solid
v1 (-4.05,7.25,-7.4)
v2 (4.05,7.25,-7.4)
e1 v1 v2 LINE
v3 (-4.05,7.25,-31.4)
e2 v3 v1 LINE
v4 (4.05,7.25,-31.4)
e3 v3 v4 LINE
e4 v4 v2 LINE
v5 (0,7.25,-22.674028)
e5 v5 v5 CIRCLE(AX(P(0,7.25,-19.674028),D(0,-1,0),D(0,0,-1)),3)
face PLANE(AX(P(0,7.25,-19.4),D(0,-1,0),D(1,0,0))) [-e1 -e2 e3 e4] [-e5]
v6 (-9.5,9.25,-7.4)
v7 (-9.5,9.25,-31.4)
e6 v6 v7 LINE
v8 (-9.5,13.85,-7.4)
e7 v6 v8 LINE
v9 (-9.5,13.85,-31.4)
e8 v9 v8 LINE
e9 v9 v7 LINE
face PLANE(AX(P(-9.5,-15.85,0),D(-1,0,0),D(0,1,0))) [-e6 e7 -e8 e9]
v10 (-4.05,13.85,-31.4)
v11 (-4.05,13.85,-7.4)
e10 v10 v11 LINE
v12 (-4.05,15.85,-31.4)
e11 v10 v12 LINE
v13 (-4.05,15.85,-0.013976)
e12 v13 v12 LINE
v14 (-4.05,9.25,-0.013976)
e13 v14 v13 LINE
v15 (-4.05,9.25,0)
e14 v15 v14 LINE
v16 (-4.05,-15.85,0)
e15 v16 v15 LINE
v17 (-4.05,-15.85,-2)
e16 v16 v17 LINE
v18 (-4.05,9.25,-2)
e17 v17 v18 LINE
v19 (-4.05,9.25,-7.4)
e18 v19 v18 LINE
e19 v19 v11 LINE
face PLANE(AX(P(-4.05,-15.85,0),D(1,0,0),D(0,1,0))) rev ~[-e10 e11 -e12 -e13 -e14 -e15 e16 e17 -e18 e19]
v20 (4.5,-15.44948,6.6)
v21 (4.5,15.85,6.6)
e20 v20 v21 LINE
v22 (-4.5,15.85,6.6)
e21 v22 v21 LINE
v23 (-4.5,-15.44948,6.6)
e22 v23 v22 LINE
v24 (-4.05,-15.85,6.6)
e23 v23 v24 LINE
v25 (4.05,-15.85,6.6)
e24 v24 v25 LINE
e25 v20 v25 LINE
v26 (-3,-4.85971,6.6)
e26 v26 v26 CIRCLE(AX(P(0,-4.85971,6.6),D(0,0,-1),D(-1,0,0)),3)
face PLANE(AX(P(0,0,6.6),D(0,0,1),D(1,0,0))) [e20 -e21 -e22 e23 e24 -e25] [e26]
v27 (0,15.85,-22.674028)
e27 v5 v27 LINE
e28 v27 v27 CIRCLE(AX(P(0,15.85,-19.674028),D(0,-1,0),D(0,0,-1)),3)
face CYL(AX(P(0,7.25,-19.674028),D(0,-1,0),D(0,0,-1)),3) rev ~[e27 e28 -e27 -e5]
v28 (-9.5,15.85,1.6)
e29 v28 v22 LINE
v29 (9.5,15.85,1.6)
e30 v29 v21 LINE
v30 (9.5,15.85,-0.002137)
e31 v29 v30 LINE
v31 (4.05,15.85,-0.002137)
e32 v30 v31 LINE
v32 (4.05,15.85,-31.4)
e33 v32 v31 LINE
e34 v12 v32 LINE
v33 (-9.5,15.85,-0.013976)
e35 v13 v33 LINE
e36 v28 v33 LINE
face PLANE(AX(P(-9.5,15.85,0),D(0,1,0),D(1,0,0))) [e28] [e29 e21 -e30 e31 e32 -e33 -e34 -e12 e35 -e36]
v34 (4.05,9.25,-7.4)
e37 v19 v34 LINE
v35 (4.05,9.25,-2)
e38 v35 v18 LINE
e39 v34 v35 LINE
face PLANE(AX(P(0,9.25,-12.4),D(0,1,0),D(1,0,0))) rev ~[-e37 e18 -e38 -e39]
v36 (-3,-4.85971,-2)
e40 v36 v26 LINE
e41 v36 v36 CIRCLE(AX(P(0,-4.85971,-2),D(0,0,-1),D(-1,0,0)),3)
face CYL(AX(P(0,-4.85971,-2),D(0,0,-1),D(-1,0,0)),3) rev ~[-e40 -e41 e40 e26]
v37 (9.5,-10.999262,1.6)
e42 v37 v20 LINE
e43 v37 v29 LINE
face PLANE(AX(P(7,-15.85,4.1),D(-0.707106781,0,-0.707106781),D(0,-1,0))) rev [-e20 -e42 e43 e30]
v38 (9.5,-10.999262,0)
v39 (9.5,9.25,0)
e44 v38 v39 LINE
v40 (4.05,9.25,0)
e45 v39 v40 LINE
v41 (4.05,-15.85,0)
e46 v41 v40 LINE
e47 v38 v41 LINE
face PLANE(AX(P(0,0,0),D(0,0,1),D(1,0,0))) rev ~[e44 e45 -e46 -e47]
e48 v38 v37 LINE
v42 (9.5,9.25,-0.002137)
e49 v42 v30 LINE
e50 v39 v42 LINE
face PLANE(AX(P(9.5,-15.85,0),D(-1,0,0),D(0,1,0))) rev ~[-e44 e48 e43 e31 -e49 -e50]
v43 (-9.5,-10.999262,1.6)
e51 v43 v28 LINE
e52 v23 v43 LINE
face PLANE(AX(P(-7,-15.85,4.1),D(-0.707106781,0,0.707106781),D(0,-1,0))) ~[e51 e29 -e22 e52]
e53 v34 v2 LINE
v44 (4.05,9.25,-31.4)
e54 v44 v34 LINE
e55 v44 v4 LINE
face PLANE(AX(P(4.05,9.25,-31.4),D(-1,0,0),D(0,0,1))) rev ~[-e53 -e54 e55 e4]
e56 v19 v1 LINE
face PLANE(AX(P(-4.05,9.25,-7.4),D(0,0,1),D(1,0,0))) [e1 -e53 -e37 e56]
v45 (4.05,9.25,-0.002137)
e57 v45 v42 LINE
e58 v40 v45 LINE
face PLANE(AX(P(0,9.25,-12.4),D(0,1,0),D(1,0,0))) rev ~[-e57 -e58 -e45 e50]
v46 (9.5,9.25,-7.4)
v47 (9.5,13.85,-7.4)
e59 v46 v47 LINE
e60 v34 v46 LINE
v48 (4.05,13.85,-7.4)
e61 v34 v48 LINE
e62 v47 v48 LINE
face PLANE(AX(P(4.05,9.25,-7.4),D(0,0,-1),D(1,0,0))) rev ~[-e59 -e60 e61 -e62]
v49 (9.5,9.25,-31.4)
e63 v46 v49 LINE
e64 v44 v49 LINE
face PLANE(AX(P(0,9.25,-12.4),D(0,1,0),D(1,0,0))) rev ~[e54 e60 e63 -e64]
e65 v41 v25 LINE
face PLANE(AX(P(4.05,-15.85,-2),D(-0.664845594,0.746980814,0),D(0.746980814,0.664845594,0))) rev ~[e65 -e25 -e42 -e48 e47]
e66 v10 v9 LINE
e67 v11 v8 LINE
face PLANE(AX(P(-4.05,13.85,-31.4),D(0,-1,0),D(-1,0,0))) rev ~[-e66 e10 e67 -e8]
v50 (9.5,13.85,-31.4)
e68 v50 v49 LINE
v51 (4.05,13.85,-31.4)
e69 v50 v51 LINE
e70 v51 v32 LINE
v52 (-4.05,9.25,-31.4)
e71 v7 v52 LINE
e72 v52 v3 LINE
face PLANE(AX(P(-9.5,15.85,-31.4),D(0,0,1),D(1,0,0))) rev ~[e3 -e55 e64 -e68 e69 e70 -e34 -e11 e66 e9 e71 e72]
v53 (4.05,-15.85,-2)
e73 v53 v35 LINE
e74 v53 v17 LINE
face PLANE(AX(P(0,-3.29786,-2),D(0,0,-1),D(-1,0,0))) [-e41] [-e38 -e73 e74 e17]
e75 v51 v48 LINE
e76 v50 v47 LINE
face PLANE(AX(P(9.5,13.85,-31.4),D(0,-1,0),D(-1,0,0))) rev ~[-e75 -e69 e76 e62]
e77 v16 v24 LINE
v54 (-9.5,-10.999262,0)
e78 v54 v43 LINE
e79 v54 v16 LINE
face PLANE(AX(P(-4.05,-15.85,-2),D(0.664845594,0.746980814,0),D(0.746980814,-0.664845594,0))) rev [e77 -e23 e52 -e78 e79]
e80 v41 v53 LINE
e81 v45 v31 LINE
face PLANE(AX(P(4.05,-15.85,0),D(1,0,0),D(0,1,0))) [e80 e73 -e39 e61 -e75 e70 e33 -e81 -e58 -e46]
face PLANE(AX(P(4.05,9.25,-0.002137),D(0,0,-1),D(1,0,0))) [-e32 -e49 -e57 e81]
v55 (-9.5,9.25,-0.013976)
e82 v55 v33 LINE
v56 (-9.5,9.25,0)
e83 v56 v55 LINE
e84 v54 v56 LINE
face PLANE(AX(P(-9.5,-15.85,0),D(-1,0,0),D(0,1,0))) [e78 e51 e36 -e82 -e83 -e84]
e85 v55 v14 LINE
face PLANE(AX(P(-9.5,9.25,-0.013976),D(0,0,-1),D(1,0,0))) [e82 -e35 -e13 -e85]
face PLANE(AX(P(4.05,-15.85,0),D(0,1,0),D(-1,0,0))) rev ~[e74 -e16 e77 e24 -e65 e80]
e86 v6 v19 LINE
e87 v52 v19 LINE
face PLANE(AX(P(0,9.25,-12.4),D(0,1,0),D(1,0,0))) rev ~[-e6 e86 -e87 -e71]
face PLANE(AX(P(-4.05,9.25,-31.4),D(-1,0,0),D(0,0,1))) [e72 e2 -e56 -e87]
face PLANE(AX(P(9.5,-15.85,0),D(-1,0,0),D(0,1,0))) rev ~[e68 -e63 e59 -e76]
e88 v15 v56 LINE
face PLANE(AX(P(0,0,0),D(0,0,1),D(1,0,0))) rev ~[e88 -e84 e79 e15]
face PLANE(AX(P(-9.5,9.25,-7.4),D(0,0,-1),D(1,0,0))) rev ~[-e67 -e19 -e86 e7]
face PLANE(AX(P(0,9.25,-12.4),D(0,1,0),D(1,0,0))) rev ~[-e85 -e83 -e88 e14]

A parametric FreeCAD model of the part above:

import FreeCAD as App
import Part
import Sketcher

V = App.Vector
Q = App.Units.Quantity


def edges_at(feature, points):
    """Names of the edges that pass closest to the given points."""
    edges = feature.Shape.Edges
    near = lambda p: min(range(len(edges)), key=lambda i: edges[i].distToShape(Part.Vertex(*p))[0])
    return sorted({f"Edge{near(p) + 1}" for p in points})

doc = App.newDocument("Part")
body = doc.addObject("PartDesign::Body", "Body")

sketch1 = body.newObject("Sketcher::SketchObject", "Sketch")
sketch1.AttachmentSupport = (doc.getObject("XY_Plane"), [""])
sketch1.MapMode = "FlatFace"
sketch1.addGeometry([
    Part.LineSegment(V(-10, 16, 0), V(-10, -16, 0)),
    Part.LineSegment(V(-10, -16, 0), V(10, -16, 0)),
    Part.LineSegment(V(10, -16, 0), V(10, 16, 0)),
    Part.LineSegment(V(10, 16, 0), V(-10, 16, 0)),
], False)
sketch1.addConstraint([
    Sketcher.Constraint("Coincident", 0, 2, 1, 1),
    Sketcher.Constraint("Coincident", 1, 2, 2, 1),
    Sketcher.Constraint("Coincident", 2, 2, 3, 1),
    Sketcher.Constraint("Coincident", 3, 2, 0, 1),
    Sketcher.Constraint("Vertical", 0),
    Sketcher.Constraint("Horizontal", 1),
    Sketcher.Constraint("Vertical", 2),
    Sketcher.Constraint("Horizontal", 3),
    Sketcher.Constraint("Symmetric", 0, 2, 2, 2, -1, 1),
    Sketcher.Constraint("DistanceX", 1, 1, 1, 2, Q("19 mm")),
    Sketcher.Constraint("DistanceY", 0, 2, 0, 1, Q("31.7 mm")),
])
pad1 = body.newObject("PartDesign::Pad", "Pad")
pad1.Profile = sketch1
pad1.Length = 6.6

sketch2 = body.newObject("Sketcher::SketchObject", "Sketch001")
sketch2.AttachmentSupport = (doc.getObject("XZ_Plane"), [""])
sketch2.MapMode = "FlatFace"
sketch2.AttachmentOffset = App.Placement(V(0, 0, -15.85), App.Rotation())
sketch2.addGeometry([
    Part.LineSegment(V(-10, -31, 0), V(-10, 7, 0)),
    Part.LineSegment(V(-10, 7, 0), V(10, 7, 0)),
    Part.LineSegment(V(10, 7, 0), V(10, -31, 0)),
    Part.LineSegment(V(10, -31, 0), V(-10, -31, 0)),
], False)
sketch2.addConstraint([
    Sketcher.Constraint("Coincident", 0, 2, 1, 1),
    Sketcher.Constraint("Coincident", 1, 2, 2, 1),
    Sketcher.Constraint("Coincident", 2, 2, 3, 1),
    Sketcher.Constraint("Coincident", 3, 2, 0, 1),
    Sketcher.Constraint("Vertical", 0),
    Sketcher.Constraint("Horizontal", 1),
    Sketcher.Constraint("Vertical", 2),
    Sketcher.Constraint("Horizontal", 3),
    Sketcher.Constraint("DistanceX", 1, 1, 1, 2, Q("19 mm")),
    Sketcher.Constraint("DistanceY", 0, 1, 0, 2, Q("38 mm")),
    Sketcher.Constraint("DistanceX", 0, 2, -1, 1, Q("9.5 mm")),
    Sketcher.Constraint("DistanceY", -1, 1, 0, 2, Q("6.6 mm")),
])
pad2 = body.newObject("PartDesign::Pad", "Pad001")
pad2.Profile = sketch2
pad2.Length = 6.6

sketch3 = body.newObject("Sketcher::SketchObject", "Sketch002")
sketch3.AttachmentSupport = (doc.getObject("XY_Plane"), [""])
sketch3.MapMode = "FlatFace"
sketch3.addGeometry([
    Part.LineSegment(V(4, 9, 0), V(4, -16, 0)),
    Part.LineSegment(V(4, -16, 0), V(-4, -16, 0)),
    Part.LineSegment(V(-4, -16, 0), V(-4, 9, 0)),
    Part.LineSegment(V(-4, 9, 0), V(4, 9, 0)),
], False)
sketch3.addConstraint([
    Sketcher.Constraint("Coincident", 0, 2, 1, 1),
    Sketcher.Constraint("Coincident", 1, 2, 2, 1),
    Sketcher.Constraint("Coincident", 2, 2, 3, 1),
    Sketcher.Constraint("Coincident", 3, 2, 0, 1),
    Sketcher.Constraint("Vertical", 0),
    Sketcher.Constraint("Horizontal", 1),
    Sketcher.Constraint("Vertical", 2),
    Sketcher.Constraint("Horizontal", 3),
    Sketcher.Constraint("DistanceX", 1, 2, 1, 1, Q("8.1 mm")),
    Sketcher.Constraint("DistanceX", -1, 1, 0, 2, Q("4.05 mm")),
    Sketcher.Constraint("DistanceY", 0, 2, -1, 1, Q("15.85 mm")),
    Sketcher.Constraint("DistanceY", 0, 2, 0, 1, Q("25.10428 mm")),
])
pad3 = body.newObject("PartDesign::Pad", "Pad002")
pad3.Profile = sketch3
pad3.Length = 2
pad3.Reversed = True

sketch4 = body.newObject("Sketcher::SketchObject", "Sketch003")
sketch4.AttachmentSupport = (doc.getObject("XZ_Plane"), [""])
sketch4.MapMode = "FlatFace"
sketch4.AttachmentOffset = App.Placement(V(0, 0, -9.25), App.Rotation())
sketch4.addGeometry([
    Part.LineSegment(V(-4, -7, 0), V(-4, -31, 0)),
    Part.LineSegment(V(-4, -31, 0), V(4, -31, 0)),
    Part.LineSegment(V(4, -31, 0), V(4, -7, 0)),
    Part.LineSegment(V(4, -7, 0), V(-4, -7, 0)),
], False)
sketch4.addConstraint([
    Sketcher.Constraint("Coincident", 0, 2, 1, 1),
    Sketcher.Constraint("Coincident", 1, 2, 2, 1),
    Sketcher.Constraint("Coincident", 2, 2, 3, 1),
    Sketcher.Constraint("Coincident", 3, 2, 0, 1),
    Sketcher.Constraint("Vertical", 0),
    Sketcher.Constraint("Horizontal", 1),
    Sketcher.Constraint("Vertical", 2),
    Sketcher.Constraint("Horizontal", 3),
    Sketcher.Constraint("DistanceY", 0, 2, 0, 1, Q("24 mm")),
    Sketcher.Constraint("DistanceX", 1, 1, 1, 2, Q("8.1 mm")),
    Sketcher.Constraint("DistanceY", 0, 2, -1, 1, Q("31.4 mm")),
    Sketcher.Constraint("DistanceX", 0, 2, -1, 1, Q("4.05 mm")),
])
pad4 = body.newObject("PartDesign::Pad", "Pad003")
pad4.Profile = sketch4
pad4.Length = 2

sketch5 = body.newObject("Sketcher::SketchObject", "Sketch004")
sketch5.AttachmentSupport = (doc.getObject("XZ_Plane"), [""])
sketch5.MapMode = "FlatFace"
sketch5.AttachmentOffset = App.Placement(V(0, 0, -9.25), App.Rotation())
sketch5.addGeometry([
    Part.LineSegment(V(-10, 0, 0), V(-10, -7, 0)),
    Part.LineSegment(V(-10, -7, 0), V(-4, -7, 0)),
    Part.LineSegment(V(-4, -7, 0), V(-4, 0, 0)),
    Part.LineSegment(V(-4, 0, 0), V(-10, 0, 0)),
    Part.LineSegment(V(4, 0, 0), V(4, -7, 0)),
    Part.LineSegment(V(4, -7, 0), V(10, -7, 0)),
    Part.LineSegment(V(10, -7, 0), V(10, 0, 0)),
    Part.LineSegment(V(10, 0, 0), V(4, 0, 0)),
], False)
sketch5.addConstraint([
    Sketcher.Constraint("Coincident", 0, 2, 1, 1),
    Sketcher.Constraint("Coincident", 1, 2, 2, 1),
    Sketcher.Constraint("Coincident", 2, 2, 3, 1),
    Sketcher.Constraint("Coincident", 3, 2, 0, 1),
    Sketcher.Constraint("Coincident", 4, 2, 5, 1),
    Sketcher.Constraint("Coincident", 5, 2, 6, 1),
    Sketcher.Constraint("Coincident", 6, 2, 7, 1),
    Sketcher.Constraint("Coincident", 7, 2, 4, 1),
    Sketcher.Constraint("Vertical", 0),
    Sketcher.Constraint("Horizontal", 1),
    Sketcher.Constraint("Vertical", 2),
    Sketcher.Constraint("Horizontal", 3),
    Sketcher.Constraint("Vertical", 4),
    Sketcher.Constraint("Horizontal", 5),
    Sketcher.Constraint("Vertical", 6),
    Sketcher.Constraint("Horizontal", 7),
    Sketcher.Constraint("Symmetric", 1, 2, 4, 2, -2),
    Sketcher.Constraint("Equal", 3, 5),
    Sketcher.Constraint("DistanceX", 0, 2, 5, 2, Q("19 mm")),
    Sketcher.Constraint("DistanceX", 1, 1, 1, 2, Q("5.45 mm")),
    Sketcher.Constraint("DistanceY", 0, 2, -1, 1, Q("7.4 mm")),
    Sketcher.Constraint("DistanceY", 0, 2, 0, 1, Q("7.386024 mm")),
    Sketcher.Constraint("DistanceY", 4, 2, 4, 1, Q("7.397863 mm")),
])
pocket1 = body.newObject("PartDesign::Pocket", "Pocket")
pocket1.Profile = sketch5
pocket1.Type = "ThroughAll"
doc.recompute()

chamfer = body.newObject("PartDesign::Chamfer", "Chamfer")
chamfer.Base = (pocket1, edges_at(pocket1, [(-9.5, 0, 6.6), (9.5, 0, 6.6)]))
chamfer.Size = 5

sketch6 = body.newObject("Sketcher::SketchObject", "Sketch005")
sketch6.AttachmentSupport = (doc.getObject("XY_Plane"), [""])
sketch6.MapMode = "FlatFace"
sketch6.AttachmentOffset = App.Placement(V(0, 0, -2), App.Rotation())
sketch6.addGeometry(Part.Circle(V(0, -4.9, 0), V(0, 0, 1), 3), False)
sketch6.addConstraint([
    Sketcher.Constraint("PointOnObject", 0, 3, -2),
    Sketcher.Constraint("Diameter", 0, Q("6 mm")),
    Sketcher.Constraint("DistanceY", 0, 3, -1, 1, Q("4.85971 mm")),
])
pocket2 = body.newObject("PartDesign::Pocket", "Pocket001")
pocket2.Profile = sketch6
pocket2.Type = "ThroughAll"
pocket2.Reversed = True

sketch7 = body.newObject("Sketcher::SketchObject", "Sketch006")
sketch7.AttachmentSupport = (doc.getObject("XZ_Plane"), [""])
sketch7.MapMode = "FlatFace"
sketch7.AttachmentOffset = App.Placement(V(0, 0, -7.25), App.Rotation())
sketch7.addGeometry(Part.Circle(V(0, -19.7, 0), V(0, 0, 1), 3), False)
sketch7.addConstraint([
    Sketcher.Constraint("PointOnObject", 0, 3, -2),
    Sketcher.Constraint("Diameter", 0, Q("6 mm")),
    Sketcher.Constraint("DistanceY", 0, 3, -1, 1, Q("19.674028 mm")),
])
pocket3 = body.newObject("PartDesign::Pocket", "Pocket002")
pocket3.Profile = sketch7
pocket3.Type = "ThroughAll"

sketch8 = body.newObject("Sketcher::SketchObject", "Sketch007")
sketch8.AttachmentSupport = (doc.getObject("XY_Plane"), [""])
sketch8.MapMode = "FlatFace"
sketch8.AttachmentOffset = App.Placement(V(0, 0, -31.4), App.Rotation())
sketch8.addGeometry([
    Part.LineSegment(V(9.5, 15.8, 0), V(9.5, 13.8, 0)),
    Part.LineSegment(V(9.5, 13.8, 0), V(4, 13.8, 0)),
    Part.LineSegment(V(4, 13.8, 0), V(4, 15.8, 0)),
    Part.LineSegment(V(4, 15.8, 0), V(9.5, 15.8, 0)),
    Part.LineSegment(V(-4, 15.8, 0), V(-4, 13.8, 0)),
    Part.LineSegment(V(-4, 13.8, 0), V(-9.5, 13.8, 0)),
    Part.LineSegment(V(-9.5, 13.8, 0), V(-9.5, 15.8, 0)),
    Part.LineSegment(V(-9.5, 15.8, 0), V(-4, 15.8, 0)),
], False)
sketch8.addConstraint([
    Sketcher.Constraint("Coincident", 0, 2, 1, 1),
    Sketcher.Constraint("Coincident", 1, 2, 2, 1),
    Sketcher.Constraint("Coincident", 2, 2, 3, 1),
    Sketcher.Constraint("Coincident", 3, 2, 0, 1),
    Sketcher.Constraint("Coincident", 4, 2, 5, 1),
    Sketcher.Constraint("Coincident", 5, 2, 6, 1),
    Sketcher.Constraint("Coincident", 6, 2, 7, 1),
    Sketcher.Constraint("Coincident", 7, 2, 4, 1),
    Sketcher.Constraint("Vertical", 0),
    Sketcher.Constraint("Horizontal", 1),
    Sketcher.Constraint("Vertical", 2),
    Sketcher.Constraint("Horizontal", 3),
    Sketcher.Constraint("Vertical", 4),
    Sketcher.Constraint("Horizontal", 5),
    Sketcher.Constraint("Vertical", 6),
    Sketcher.Constraint("Horizontal", 7),
    Sketcher.Constraint("Symmetric", 1, 2, 4, 2, -2),
    Sketcher.Constraint("Symmetric", 3, 2, 6, 2, -2),
    Sketcher.Constraint("DistanceY", 0, 2, 0, 1, Q("2 mm")),
    Sketcher.Constraint("DistanceX", 5, 2, 0, 2, Q("19 mm")),
    Sketcher.Constraint("DistanceX", 1, 2, 1, 1, Q("5.45 mm")),
    Sketcher.Constraint("DistanceY", -1, 1, 0, 2, Q("13.85 mm")),
])
pocket4 = body.newObject("PartDesign::Pocket", "Pocket003")
pocket4.Profile = sketch8
pocket4.Length = 25
pocket4.Reversed = True

sketch9 = body.newObject("Sketcher::SketchObject", "Sketch008")
sketch9.AttachmentSupport = (doc.getObject("XY_Plane"), [""])
sketch9.MapMode = "FlatFace"
sketch9.AttachmentOffset = App.Placement(V(0, 0, -2), App.Rotation())
sketch9.addGeometry([
    Part.LineSegment(V(4, -15.8, 0), V(9.5, -11, 0)),
    Part.LineSegment(V(9.5, -11, 0), V(9.5, -15.8, 0)),
    Part.LineSegment(V(9.5, -15.8, 0), V(4, -15.8, 0)),
], False)
sketch9.addConstraint([
    Sketcher.Constraint("Coincident", 0, 2, 1, 1),
    Sketcher.Constraint("Coincident", 1, 2, 2, 1),
    Sketcher.Constraint("Coincident", 2, 2, 0, 1),
    Sketcher.Constraint("Vertical", 1),
    Sketcher.Constraint("Horizontal", 2),
    Sketcher.Constraint("DistanceX", 2, 2, 2, 1, Q("5.45 mm")),
    Sketcher.Constraint("DistanceX", -1, 1, 0, 2, Q("9.5 mm")),
    Sketcher.Constraint("DistanceY", 1, 2, -1, 1, Q("15.85 mm")),
    Sketcher.Constraint("DistanceY", 1, 2, 1, 1, Q("4.850738 mm")),
])
pocket5 = body.newObject("PartDesign::Pocket", "Pocket004")
pocket5.Profile = sketch9
pocket5.Type = "ThroughAll"
pocket5.Reversed = True
doc.recompute()

mirrored = body.newObject("PartDesign::Mirrored", "Mirrored")
mirrored.Originals = [pocket5]
mirrored.MirrorPlane = (doc.getObject("YZ_Plane"), [""])
body.Tip = mirrored

doc.recompute()
